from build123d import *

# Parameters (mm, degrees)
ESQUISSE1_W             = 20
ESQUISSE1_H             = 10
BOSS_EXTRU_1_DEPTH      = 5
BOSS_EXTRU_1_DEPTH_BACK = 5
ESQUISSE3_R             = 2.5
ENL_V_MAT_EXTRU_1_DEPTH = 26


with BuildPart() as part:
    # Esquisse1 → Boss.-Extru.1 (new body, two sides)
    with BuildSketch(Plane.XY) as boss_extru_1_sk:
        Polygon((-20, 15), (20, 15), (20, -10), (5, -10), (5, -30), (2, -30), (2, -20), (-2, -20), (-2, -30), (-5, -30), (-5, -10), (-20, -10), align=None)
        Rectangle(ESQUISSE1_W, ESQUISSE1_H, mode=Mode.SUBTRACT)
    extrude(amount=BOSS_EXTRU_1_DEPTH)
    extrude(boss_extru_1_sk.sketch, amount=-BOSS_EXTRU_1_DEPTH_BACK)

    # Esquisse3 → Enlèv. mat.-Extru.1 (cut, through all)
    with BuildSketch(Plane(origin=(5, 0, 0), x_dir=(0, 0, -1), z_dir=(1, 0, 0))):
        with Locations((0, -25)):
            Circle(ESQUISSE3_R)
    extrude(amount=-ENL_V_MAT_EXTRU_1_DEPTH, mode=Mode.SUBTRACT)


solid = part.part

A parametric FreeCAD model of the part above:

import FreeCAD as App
import Part
import Sketcher

doc = App.newDocument("Part")
body = doc.addObject("PartDesign::Body", "Body")

sketch1 = body.newObject("Sketcher::SketchObject", "Sketch")
sketch1.AttachmentSupport = (doc.getObject("XY_Plane"), [""])
sketch1.MapMode = "FlatFace"
sketch1.addGeometry([
    Part.LineSegment(App.Vector(20, 15, 0), App.Vector(-20, 15, 0)),
    Part.LineSegment(App.Vector(-20, 15, 0), App.Vector(-20, -10, 0)),
    Part.LineSegment(App.Vector(-20, -10, 0), App.Vector(-5, -10, 0)),
    Part.LineSegment(App.Vector(-5, -10, 0), App.Vector(-5, -30, 0)),
    Part.LineSegment(App.Vector(-5, -30, 0), App.Vector(-2, -30, 0)),
    Part.LineSegment(App.Vector(-2, -30, 0), App.Vector(-2, -20, 0)),
    Part.LineSegment(App.Vector(-2, -20, 0), App.Vector(2, -20, 0)),
    Part.LineSegment(App.Vector(2, -20, 0), App.Vector(2, -30, 0)),
    Part.LineSegment(App.Vector(2, -30, 0), App.Vector(5, -30, 0)),
    Part.LineSegment(App.Vector(5, -30, 0), App.Vector(5, -10, 0)),
    Part.LineSegment(App.Vector(5, -10, 0), App.Vector(20, -10, 0)),
    Part.LineSegment(App.Vector(20, -10, 0), App.Vector(20, 15, 0)),
    Part.LineSegment(App.Vector(-10, -5, 0), App.Vector(-10, 5, 0)),
    Part.LineSegment(App.Vector(-10, 5, 0), App.Vector(10, 5, 0)),
    Part.LineSegment(App.Vector(10, 5, 0), App.Vector(10, -5, 0)),
    Part.LineSegment(App.Vector(10, -5, 0), App.Vector(-10, -5, 0)),
], False)
sketch1.addConstraint([
    Sketcher.Constraint("Coincident", 0, 2, 1, 1),
    Sketcher.Constraint("Coincident", 1, 2, 2, 1),
    Sketcher.Constraint("Coincident", 2, 2, 3, 1),
    Sketcher.Constraint("Coincident", 3, 2, 4, 1),
    Sketcher.Constraint("Coincident", 4, 2, 5, 1),
    Sketcher.Constraint("Coincident", 5, 2, 6, 1),
    Sketcher.Constraint("Coincident", 6, 2, 7, 1),
    Sketcher.Constraint("Coincident", 7, 2, 8, 1),
    Sketcher.Constraint("Coincident", 8, 2, 9, 1),
    Sketcher.Constraint("Coincident", 9, 2, 10, 1),
    Sketcher.Constraint("Coincident", 10, 2, 11, 1),
    Sketcher.Constraint("Coincident", 11, 2, 0, 1),
    Sketcher.Constraint("Coincident", 12, 2, 13, 1),
    Sketcher.Constraint("Coincident", 13, 2, 14, 1),
    Sketcher.Constraint("Coincident", 14, 2, 15, 1),
    Sketcher.Constraint("Coincident", 15, 2, 12, 1),
    Sketcher.Constraint("Horizontal", 0),
    Sketcher.Constraint("Vertical", 1),
    Sketcher.Constraint("Horizontal", 2),
    Sketcher.Constraint("Vertical", 3),
    Sketcher.Constraint("Horizontal", 4),
    Sketcher.Constraint("Vertical", 5),
    Sketcher.Constraint("Horizontal", 6),
    Sketcher.Constraint("Vertical", 7),
    Sketcher.Constraint("Horizontal", 8),
    Sketcher.Constraint("Vertical", 9),
    Sketcher.Constraint("Horizontal", 10),
    Sketcher.Constraint("Vertical", 11),
    Sketcher.Constraint("Vertical", 12),
    Sketcher.Constraint("Horizontal", 13),
    Sketcher.Constraint("Vertical", 14),
    Sketcher.Constraint("Horizontal", 15),
    Sketcher.Constraint("Symmetric", 12, 2, 14, 2, -1, 1),
    Sketcher.Constraint("Symmetric", 4, 2, 7, 2, -2),
    Sketcher.Constraint("Symmetric", 2, 2, 9, 2, -2),
    Sketcher.Constraint("Equal", 2, 10),
    Sketcher.Constraint("Equal", 15, 3),
    Sketcher.Constraint("Equal", 7, 12),
    Sketcher.Constraint("DistanceX", 0, 2, 0, 1, 40.0),
    Sketcher.Constraint("DistanceX", 2, 1, 2, 2, 15.0),
    Sketcher.Constraint("DistanceX", 4, 1, 4, 2, 3.0),
    Sketcher.Constraint("DistanceX", 13, 1, 13, 2, 20.0),
    Sketcher.Constraint("DistanceY", 1, 2, 1, 1, 25.0),
    Sketcher.Constraint("DistanceY", 5, 1, 5, 2, 10.0),
    Sketcher.Constraint("DistanceY", -1, 1, 0, 2, 15.0),
])
pad1 = body.newObject("PartDesign::Pad", "Pad")
pad1.Profile = sketch1
pad1.Type = "TwoLengths"
pad1.Length = 5
pad1.Length2 = 5

sketch2 = body.newObject("Sketcher::SketchObject", "Sketch001")
sketch2.AttachmentSupport = (doc.getObject("YZ_Plane"), [""])
sketch2.MapMode = "FlatFace"
sketch2.AttachmentOffset = App.Placement(App.Vector(0, 0, 5), App.Rotation())
sketch2.addGeometry(Part.Circle(App.Vector(-25, 0, 0), App.Vector(0, 0, 1), 2.5), False)
sketch2.addConstraint([
    Sketcher.Constraint("PointOnObject", 0, 3, -1),
    Sketcher.Constraint("Diameter", 0, 5.0),
    Sketcher.Constraint("DistanceX", 0, 3, -1, 1, 25.0),
])
pocket1 = body.newObject("PartDesign::Pocket", "Pocket")
pocket1.Profile = sketch2
pocket1.Type = "ThroughAll"

doc.recompute()
